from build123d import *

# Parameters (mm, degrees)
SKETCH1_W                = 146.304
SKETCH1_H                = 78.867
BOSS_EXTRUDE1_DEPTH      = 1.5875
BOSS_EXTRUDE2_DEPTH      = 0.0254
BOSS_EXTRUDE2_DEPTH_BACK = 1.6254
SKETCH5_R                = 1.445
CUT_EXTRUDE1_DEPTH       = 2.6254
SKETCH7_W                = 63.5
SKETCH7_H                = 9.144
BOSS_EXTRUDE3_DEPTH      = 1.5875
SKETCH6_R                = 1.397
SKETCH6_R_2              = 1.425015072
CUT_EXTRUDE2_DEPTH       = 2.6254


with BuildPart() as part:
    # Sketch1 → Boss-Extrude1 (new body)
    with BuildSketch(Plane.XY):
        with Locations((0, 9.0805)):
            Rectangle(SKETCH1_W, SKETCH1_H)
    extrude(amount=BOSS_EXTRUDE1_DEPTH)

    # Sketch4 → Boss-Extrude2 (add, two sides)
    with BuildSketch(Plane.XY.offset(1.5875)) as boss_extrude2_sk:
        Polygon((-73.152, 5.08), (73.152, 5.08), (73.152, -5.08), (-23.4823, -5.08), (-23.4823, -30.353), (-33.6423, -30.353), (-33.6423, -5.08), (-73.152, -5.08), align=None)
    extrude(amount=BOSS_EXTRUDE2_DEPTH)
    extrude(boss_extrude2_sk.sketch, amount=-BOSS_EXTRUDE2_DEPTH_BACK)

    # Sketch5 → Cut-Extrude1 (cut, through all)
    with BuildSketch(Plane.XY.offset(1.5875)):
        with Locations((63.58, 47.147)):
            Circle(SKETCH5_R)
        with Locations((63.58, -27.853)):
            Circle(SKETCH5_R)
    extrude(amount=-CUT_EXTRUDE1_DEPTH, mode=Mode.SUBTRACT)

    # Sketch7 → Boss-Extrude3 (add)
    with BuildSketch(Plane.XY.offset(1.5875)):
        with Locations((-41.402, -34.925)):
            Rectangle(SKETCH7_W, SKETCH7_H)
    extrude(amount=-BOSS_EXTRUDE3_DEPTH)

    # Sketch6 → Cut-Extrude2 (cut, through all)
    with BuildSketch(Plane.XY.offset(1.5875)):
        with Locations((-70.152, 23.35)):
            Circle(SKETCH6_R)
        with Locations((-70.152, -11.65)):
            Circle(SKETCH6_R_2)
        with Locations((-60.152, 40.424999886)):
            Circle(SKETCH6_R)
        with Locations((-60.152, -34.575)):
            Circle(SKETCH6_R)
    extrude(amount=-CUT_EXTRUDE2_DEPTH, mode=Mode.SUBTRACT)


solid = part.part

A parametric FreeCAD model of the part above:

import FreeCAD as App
import Part
import Sketcher
from FreeCAD import Vector
Q = App.Units.Quantity

doc = App.newDocument("Part")
body = doc.addObject("PartDesign::Body", "Body")

# Sketch on XY plane
sketch1 = body.newObject("Sketcher::SketchObject", "Sketch")
sketch1.AttachmentSupport = (doc.getObject("XY_Plane"), [""])
sketch1.MapMode = "FlatFace"
sketch1.addGeometry([
    Part.LineSegment(Vector(-73, 49, 0), Vector(-73, -30, 0)),
    Part.LineSegment(Vector(-73, -30, 0), Vector(73, -30, 0)),
    Part.LineSegment(Vector(73, -30, 0), Vector(73, 49, 0)),
    Part.LineSegment(Vector(73, 49, 0), Vector(-73, 49, 0)),
], False)
sketch1.addConstraint([
    Sketcher.Constraint("Coincident", 0, 2, 1, 1),
    Sketcher.Constraint("Coincident", 1, 2, 2, 1),
    Sketcher.Constraint("Coincident", 2, 2, 3, 1),
    Sketcher.Constraint("Coincident", 3, 2, 0, 1),
    Sketcher.Constraint("Vertical", 0),
    Sketcher.Constraint("Horizontal", 1),
    Sketcher.Constraint("Vertical", 2),
    Sketcher.Constraint("Horizontal", 3),
    Sketcher.Constraint("DistanceX", 1, 1, 1, 2, Q("5.76 in")),
    Sketcher.Constraint("DistanceY", 0, 2, 0, 1, Q("3.105 in")),
    Sketcher.Constraint("DistanceX", 0, 2, -1, 1, Q("2.88 in")),
    Sketcher.Constraint("DistanceY", -1, 1, 2, 2, Q("1.91 in")),
])
pad1 = body.newObject("PartDesign::Pad", "Pad")
pad1.Profile = sketch1
pad1.Length = Q("0.0625 in")

# Sketch on XY plane
sketch2 = body.newObject("Sketcher::SketchObject", "Sketch001")
sketch2.AttachmentSupport = (doc.getObject("XY_Plane"), [""])
sketch2.MapMode = "FlatFace"
sketch2.AttachmentOffset = App.Placement(Vector(0, 0, 0.0625 * 25.4), App.Rotation())
sketch2.addGeometry([
    Part.LineSegment(Vector(73, 5, 0), Vector(-73, 5, 0)),  # 0
    Part.LineSegment(Vector(-73, 5, 0), Vector(-73, -5, 0)),  # 1
    Part.LineSegment(Vector(-73, -5, 0), Vector(-34, -5, 0)),  # 2
    Part.LineSegment(Vector(-34, -5, 0), Vector(-34, -30, 0)),  # 3
    Part.LineSegment(Vector(-34, -30, 0), Vector(-23, -30, 0)),  # 4
    Part.LineSegment(Vector(-23, -30, 0), Vector(-23, -5, 0)),  # 5
    Part.LineSegment(Vector(-23, -5, 0), Vector(73, -5, 0)),  # 6
    Part.LineSegment(Vector(73, -5, 0), Vector(73, 5, 0)),  # 7
], False)
sketch2.addConstraint([
    Sketcher.Constraint("Coincident", 0, 2, 1, 1),
    Sketcher.Constraint("Coincident", 1, 2, 2, 1),
    Sketcher.Constraint("Coincident", 2, 2, 3, 1),
    Sketcher.Constraint("Coincident", 3, 2, 4, 1),
    Sketcher.Constraint("Coincident", 4, 2, 5, 1),
    Sketcher.Constraint("Coincident", 5, 2, 6, 1),
    Sketcher.Constraint("Coincident", 6, 2, 7, 1),
    Sketcher.Constraint("Coincident", 7, 2, 0, 1),
    Sketcher.Constraint("Horizontal", 0),
    Sketcher.Constraint("Vertical", 1),
    Sketcher.Constraint("Horizontal", 2),
    Sketcher.Constraint("Vertical", 3),
    Sketcher.Constraint("Horizontal", 4),
    Sketcher.Constraint("Vertical", 5),
    Sketcher.Constraint("Horizontal", 6),
    Sketcher.Constraint("Vertical", 7),
    Sketcher.Constraint("Symmetric", 0, 2, 6, 2, -1, 1),
    Sketcher.Constraint("Horizontal", 2, 2, 5, 2),
    Sketcher.Constraint("Equal", 4, 1),
    Sketcher.Constraint("DistanceX", 4, 1, 4, 2, Q("0.4 in")),
    Sketcher.Constraint("DistanceX", 0, 2, 0, 1, Q("5.76 in")),
    Sketcher.Constraint("DistanceY", 3, 2, 3, 1, Q("0.995 in")),
    Sketcher.Constraint("DistanceX", 2, 1, 2, 2, Q("1.5555 in")),
])
pad2 = body.newObject("PartDesign::Pad", "Pad001")
pad2.Profile = sketch2
pad2.Type = "TwoLengths"
pad2.Length = Q("0.001 in")
pad2.Length2 = 1.6254

# Sketch on XY plane
sketch3 = body.newObject("Sketcher::SketchObject", "Sketch002")
sketch3.AttachmentSupport = (doc.getObject("XY_Plane"), [""])
sketch3.MapMode = "FlatFace"
sketch3.AttachmentOffset = App.Placement(Vector(0, 0, 0.0625 * 25.4), App.Rotation())
sketch3.addGeometry([
    Part.Circle(Vector(63.6, 47.1, 0), Vector(0, 0, 1), 1.4),
    Part.Circle(Vector(63.6, -27.9, 0), Vector(0, 0, 1), 1.4),
], False)
sketch3.addConstraint([
    Sketcher.Constraint("Equal", 0, 1),
    Sketcher.Constraint("Vertical", 0, 3, 1, 3),
    Sketcher.Constraint("Diameter", 0, Q("2.89 mm")),
    Sketcher.Constraint("DistanceX", -1, 1, 0, 3, Q("63.58 mm")),
    Sketcher.Constraint("DistanceY", -1, 1, 0, 3, Q("47.147 mm")),
    Sketcher.Constraint("DistanceY", 1, 3, -1, 1, Q("27.853 mm")),
])
pocket1 = body.newObject("PartDesign::Pocket", "Pocket")
pocket1.Profile = sketch3
pocket1.Type = "ThroughAll"

# Sketch on XY plane
sketch4 = body.newObject("Sketcher::SketchObject", "Sketch003")
sketch4.AttachmentSupport = (doc.getObject("XY_Plane"), [""])
sketch4.MapMode = "FlatFace"
sketch4.AttachmentOffset = App.Placement(Vector(0, 0, 0.0625 * 25.4), App.Rotation())
sketch4.addGeometry([
    Part.LineSegment(Vector(-73, -30, 0), Vector(-73, -39, 0)),
    Part.LineSegment(Vector(-73, -39, 0), Vector(-10, -39, 0)),
    Part.LineSegment(Vector(-10, -39, 0), Vector(-10, -30, 0)),
    Part.LineSegment(Vector(-10, -30, 0), Vector(-73, -30, 0)),
], False)
sketch4.addConstraint([
    Sketcher.Constraint("Coincident", 0, 2, 1, 1),
    Sketcher.Constraint("Coincident", 1, 2, 2, 1),
    Sketcher.Constraint("Coincident", 2, 2, 3, 1),
    Sketcher.Constraint("Coincident", 3, 2, 0, 1),
    Sketcher.Constraint("Vertical", 0),
    Sketcher.Constraint("Horizontal", 1),
    Sketcher.Constraint("Vertical", 2),
    Sketcher.Constraint("Horizontal", 3),
    Sketcher.Constraint("DistanceX", 1, 1, 1, 2, Q("2.5 in")),
    Sketcher.Constraint("DistanceY", 0, 2, 0, 1, Q("0.36 in")),
    Sketcher.Constraint("DistanceX", 0, 2, -1, 1, Q("2.88 in")),
    Sketcher.Constraint("DistanceY", 0, 2, -1, 1, Q("1.555 in")),
])
pad3 = body.newObject("PartDesign::Pad", "Pad002")
pad3.Profile = sketch4
pad3.Length = Q("0.0625 in")
pad3.Reversed = True

# Sketch on XY plane
sketch5 = body.newObject("Sketcher::SketchObject", "Sketch004")
sketch5.AttachmentSupport = (doc.getObject("XY_Plane"), [""])
sketch5.MapMode = "FlatFace"
sketch5.AttachmentOffset = App.Placement(Vector(0, 0, 0.0625 * 25.4), App.Rotation())
sketch5.addGeometry([
    Part.Circle(Vector(-70.2, 23.4, 0), Vector(0, 0, 1), 1.4),
    Part.Circle(Vector(-70.2, -11.7, 0), Vector(0, 0, 1), 1.4),
    Part.Circle(Vector(-60.2, 40.4, 0), Vector(0, 0, 1), 1.4),
    Part.Circle(Vector(-60.2, -34.6, 0), Vector(0, 0, 1), 1.4),
], False)
sketch5.addConstraint([
    Sketcher.Constraint("Equal", 0, 2),
    Sketcher.Constraint("Equal", 2, 3),
    Sketcher.Constraint("Vertical", 0, 3, 1, 3),
    Sketcher.Constraint("Vertical", 2, 3, 3, 3),
    Sketcher.Constraint("Diameter", 0, Q("0.11 in")),
    Sketcher.Constraint("Diameter", 1, Q("2.85003 mm")),
    Sketcher.Constraint("DistanceX", 0, 3, -1, 1, Q("70.152 mm")),
    Sketcher.Constraint("DistanceY", -1, 1, 0, 3, Q("23.35 mm")),
    Sketcher.Constraint("DistanceY", 1, 3, -1, 1, Q("11.65 mm")),
    Sketcher.Constraint("DistanceX", 2, 3, -1, 1, Q("60.152 mm")),
    Sketcher.Constraint("DistanceY", -1, 1, 2, 3, Q("40.425 mm")),
    Sketcher.Constraint("DistanceY", 3, 3, -1, 1, Q("34.575 mm")),
])
pocket2 = body.newObject("PartDesign::Pocket", "Pocket001")
pocket2.Profile = sketch5
pocket2.Type = "ThroughAll"

doc.recompute()
